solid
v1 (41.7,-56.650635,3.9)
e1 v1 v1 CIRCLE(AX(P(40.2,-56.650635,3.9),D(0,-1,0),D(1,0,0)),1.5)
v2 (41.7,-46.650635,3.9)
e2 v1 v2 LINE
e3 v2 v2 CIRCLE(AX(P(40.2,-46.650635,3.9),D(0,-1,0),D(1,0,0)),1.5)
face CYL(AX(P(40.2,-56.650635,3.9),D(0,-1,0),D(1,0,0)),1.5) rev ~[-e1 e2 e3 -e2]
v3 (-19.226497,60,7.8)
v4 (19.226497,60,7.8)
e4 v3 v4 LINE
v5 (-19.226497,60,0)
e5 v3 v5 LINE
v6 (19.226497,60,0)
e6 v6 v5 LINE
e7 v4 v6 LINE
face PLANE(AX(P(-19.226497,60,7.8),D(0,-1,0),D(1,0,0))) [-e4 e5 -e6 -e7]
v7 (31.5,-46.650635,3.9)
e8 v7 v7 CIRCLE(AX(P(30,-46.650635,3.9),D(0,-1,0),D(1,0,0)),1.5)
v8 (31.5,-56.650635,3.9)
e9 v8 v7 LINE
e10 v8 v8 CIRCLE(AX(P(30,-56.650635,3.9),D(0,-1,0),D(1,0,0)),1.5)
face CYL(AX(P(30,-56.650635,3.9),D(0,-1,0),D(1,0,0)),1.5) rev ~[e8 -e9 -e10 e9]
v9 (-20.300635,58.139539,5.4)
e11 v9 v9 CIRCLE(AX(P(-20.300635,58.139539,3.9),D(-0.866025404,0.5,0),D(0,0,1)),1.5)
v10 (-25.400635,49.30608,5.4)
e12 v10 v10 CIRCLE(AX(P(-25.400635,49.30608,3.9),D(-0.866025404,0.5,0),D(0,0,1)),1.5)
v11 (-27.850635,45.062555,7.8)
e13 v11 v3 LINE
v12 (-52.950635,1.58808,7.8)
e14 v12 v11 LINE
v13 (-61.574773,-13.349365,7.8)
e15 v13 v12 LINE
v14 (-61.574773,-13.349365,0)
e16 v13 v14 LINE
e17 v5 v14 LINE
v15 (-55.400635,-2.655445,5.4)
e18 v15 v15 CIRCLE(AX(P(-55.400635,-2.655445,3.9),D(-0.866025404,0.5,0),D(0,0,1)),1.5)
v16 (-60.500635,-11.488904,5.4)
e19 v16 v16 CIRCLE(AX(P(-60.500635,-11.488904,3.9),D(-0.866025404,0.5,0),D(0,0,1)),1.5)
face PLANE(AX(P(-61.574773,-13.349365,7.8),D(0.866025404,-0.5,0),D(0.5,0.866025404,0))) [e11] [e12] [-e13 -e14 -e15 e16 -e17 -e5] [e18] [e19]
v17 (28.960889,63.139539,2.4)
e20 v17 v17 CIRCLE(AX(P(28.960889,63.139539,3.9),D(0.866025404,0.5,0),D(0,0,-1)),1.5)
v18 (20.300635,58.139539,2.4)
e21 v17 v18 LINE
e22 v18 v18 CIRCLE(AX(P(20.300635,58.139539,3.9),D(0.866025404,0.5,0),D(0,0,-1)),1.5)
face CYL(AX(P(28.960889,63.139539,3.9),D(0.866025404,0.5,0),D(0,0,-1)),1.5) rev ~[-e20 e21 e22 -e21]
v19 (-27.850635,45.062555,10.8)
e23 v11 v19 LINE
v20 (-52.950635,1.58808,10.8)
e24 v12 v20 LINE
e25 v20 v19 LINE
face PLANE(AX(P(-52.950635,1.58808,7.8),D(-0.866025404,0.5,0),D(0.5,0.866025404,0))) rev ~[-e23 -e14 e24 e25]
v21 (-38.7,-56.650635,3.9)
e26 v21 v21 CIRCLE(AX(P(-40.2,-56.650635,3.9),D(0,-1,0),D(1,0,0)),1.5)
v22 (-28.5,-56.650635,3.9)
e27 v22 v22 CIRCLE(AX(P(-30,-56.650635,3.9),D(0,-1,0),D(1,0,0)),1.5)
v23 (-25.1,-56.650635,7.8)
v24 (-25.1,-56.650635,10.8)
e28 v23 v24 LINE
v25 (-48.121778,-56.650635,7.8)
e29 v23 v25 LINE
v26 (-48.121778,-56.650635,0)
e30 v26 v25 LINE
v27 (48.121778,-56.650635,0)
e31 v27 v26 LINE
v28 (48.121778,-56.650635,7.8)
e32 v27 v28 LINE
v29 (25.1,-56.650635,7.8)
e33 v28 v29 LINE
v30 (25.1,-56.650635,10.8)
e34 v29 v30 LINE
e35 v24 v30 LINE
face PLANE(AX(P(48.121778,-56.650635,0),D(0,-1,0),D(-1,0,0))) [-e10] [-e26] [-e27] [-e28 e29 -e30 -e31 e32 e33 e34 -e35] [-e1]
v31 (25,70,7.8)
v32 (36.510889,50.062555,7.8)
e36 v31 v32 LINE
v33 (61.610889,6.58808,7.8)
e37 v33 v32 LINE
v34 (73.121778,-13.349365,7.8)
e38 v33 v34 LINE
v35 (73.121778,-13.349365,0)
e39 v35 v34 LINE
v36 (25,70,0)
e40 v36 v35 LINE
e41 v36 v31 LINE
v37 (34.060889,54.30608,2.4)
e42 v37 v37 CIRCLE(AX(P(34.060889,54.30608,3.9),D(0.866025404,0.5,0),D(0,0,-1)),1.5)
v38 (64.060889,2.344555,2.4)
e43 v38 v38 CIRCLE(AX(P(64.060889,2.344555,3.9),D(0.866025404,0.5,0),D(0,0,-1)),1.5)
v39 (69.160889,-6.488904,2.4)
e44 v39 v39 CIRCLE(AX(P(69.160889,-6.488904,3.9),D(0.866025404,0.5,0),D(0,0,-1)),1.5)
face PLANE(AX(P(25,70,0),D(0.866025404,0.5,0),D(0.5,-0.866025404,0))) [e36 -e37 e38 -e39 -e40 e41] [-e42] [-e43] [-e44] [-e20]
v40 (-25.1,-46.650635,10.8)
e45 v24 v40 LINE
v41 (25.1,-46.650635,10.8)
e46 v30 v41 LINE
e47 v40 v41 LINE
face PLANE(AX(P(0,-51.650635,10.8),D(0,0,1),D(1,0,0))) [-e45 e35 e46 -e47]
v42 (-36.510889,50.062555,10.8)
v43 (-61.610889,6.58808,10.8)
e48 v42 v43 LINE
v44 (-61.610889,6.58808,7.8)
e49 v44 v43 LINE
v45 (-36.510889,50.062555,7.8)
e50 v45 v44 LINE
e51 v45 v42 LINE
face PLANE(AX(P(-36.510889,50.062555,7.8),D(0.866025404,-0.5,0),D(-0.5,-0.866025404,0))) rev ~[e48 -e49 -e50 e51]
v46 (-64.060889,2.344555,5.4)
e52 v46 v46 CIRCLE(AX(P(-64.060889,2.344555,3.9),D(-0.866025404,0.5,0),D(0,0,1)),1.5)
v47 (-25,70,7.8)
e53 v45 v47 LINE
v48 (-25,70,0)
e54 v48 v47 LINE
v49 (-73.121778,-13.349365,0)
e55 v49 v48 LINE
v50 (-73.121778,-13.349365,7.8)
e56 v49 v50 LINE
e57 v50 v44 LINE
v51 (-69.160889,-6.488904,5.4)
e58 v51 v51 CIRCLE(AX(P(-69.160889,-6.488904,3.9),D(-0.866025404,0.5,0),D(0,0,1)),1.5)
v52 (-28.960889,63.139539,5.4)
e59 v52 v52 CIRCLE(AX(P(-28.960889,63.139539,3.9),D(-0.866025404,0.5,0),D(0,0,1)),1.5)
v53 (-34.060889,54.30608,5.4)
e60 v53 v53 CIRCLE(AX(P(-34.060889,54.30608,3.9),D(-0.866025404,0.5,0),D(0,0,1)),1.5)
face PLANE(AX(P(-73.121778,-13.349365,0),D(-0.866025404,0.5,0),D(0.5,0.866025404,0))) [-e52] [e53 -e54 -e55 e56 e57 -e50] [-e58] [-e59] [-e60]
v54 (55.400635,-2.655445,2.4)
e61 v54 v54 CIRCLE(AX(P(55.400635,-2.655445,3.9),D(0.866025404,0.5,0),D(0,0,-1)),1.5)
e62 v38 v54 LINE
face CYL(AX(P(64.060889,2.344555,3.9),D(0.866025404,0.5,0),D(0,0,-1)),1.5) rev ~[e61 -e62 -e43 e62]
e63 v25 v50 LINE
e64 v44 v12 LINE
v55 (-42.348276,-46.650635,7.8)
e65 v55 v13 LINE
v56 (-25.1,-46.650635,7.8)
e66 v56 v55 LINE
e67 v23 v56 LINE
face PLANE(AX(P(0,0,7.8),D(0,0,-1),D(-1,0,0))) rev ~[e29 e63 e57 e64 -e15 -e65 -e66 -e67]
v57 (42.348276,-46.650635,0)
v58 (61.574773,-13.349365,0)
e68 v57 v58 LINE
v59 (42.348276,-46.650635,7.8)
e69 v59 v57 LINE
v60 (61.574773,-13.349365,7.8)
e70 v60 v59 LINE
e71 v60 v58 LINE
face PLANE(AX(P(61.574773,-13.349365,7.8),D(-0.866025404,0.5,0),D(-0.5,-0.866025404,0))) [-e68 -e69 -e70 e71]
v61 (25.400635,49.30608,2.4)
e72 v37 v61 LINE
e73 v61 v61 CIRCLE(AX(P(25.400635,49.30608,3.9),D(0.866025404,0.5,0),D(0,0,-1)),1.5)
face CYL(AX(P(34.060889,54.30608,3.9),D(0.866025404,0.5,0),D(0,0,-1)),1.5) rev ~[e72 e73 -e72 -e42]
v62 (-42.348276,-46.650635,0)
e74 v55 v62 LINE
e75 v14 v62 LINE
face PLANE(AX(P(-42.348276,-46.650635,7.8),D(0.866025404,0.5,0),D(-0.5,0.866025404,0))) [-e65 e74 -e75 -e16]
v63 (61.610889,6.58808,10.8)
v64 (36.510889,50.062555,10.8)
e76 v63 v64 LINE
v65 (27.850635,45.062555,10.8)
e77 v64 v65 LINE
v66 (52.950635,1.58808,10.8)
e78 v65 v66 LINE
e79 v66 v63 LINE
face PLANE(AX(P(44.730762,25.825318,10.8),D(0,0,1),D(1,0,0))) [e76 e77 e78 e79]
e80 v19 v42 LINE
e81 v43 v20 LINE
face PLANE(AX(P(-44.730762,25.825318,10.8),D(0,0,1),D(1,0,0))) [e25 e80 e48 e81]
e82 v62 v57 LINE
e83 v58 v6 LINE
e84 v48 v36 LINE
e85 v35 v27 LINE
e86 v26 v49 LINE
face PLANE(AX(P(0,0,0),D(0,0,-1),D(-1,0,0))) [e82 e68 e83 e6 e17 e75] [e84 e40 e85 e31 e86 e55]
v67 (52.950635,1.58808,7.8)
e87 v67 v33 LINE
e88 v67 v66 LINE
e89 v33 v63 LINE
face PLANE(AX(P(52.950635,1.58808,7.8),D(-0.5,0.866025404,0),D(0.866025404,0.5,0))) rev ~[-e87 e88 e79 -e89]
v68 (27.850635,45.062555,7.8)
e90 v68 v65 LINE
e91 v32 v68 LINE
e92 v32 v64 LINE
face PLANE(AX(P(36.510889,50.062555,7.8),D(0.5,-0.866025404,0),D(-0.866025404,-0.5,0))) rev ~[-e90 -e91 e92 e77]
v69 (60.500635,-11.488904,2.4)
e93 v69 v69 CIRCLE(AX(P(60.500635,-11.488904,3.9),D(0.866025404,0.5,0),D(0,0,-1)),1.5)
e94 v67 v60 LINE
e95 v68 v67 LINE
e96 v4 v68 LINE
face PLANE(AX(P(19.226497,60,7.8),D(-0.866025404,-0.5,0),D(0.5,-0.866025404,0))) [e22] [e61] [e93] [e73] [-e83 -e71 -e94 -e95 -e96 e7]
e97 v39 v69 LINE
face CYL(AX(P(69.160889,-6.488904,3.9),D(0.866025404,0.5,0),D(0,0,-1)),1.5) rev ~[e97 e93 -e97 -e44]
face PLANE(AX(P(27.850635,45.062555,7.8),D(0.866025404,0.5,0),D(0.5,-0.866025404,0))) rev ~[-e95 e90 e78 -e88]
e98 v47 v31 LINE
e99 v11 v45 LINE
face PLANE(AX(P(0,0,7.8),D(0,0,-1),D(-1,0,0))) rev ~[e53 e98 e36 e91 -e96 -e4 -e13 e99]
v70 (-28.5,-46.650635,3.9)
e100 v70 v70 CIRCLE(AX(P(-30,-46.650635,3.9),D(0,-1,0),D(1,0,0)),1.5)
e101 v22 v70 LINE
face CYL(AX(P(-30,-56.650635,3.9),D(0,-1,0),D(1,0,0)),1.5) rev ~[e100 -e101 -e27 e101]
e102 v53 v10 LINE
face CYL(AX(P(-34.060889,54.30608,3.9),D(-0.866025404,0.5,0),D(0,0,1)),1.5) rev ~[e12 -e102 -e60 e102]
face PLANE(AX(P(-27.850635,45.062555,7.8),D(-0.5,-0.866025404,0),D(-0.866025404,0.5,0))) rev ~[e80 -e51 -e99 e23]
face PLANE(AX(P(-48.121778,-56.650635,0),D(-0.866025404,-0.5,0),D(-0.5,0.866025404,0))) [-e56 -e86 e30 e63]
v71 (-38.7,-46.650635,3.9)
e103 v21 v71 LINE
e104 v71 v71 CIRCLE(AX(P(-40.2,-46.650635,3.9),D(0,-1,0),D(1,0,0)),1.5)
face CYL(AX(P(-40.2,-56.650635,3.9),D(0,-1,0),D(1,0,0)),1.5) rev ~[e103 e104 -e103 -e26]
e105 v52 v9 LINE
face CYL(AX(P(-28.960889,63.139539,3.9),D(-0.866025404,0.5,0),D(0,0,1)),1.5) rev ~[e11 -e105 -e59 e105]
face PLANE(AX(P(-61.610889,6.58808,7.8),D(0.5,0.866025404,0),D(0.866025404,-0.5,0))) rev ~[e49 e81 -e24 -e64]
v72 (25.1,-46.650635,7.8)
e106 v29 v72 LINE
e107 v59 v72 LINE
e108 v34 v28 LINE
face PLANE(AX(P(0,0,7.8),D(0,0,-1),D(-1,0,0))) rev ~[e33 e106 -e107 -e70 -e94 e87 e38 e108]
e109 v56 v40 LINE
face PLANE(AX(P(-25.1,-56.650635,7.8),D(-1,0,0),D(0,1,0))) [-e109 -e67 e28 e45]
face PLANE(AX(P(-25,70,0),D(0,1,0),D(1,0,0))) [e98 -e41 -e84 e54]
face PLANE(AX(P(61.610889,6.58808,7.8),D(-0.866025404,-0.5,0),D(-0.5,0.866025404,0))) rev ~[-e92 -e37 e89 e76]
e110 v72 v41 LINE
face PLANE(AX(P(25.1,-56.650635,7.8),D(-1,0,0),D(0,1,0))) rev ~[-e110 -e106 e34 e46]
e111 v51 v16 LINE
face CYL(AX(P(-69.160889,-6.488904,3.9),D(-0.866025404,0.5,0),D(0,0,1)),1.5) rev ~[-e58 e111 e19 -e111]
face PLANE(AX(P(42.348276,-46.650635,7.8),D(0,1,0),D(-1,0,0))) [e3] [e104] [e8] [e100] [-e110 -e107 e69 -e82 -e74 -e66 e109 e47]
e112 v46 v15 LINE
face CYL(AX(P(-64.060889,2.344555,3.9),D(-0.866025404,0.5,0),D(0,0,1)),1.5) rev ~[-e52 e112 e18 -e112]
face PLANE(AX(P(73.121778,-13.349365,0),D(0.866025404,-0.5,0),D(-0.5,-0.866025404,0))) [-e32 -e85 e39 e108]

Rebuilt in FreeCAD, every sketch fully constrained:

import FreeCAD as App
import Part
import Sketcher
Q = App.Units.Quantity

doc = App.newDocument("Part")
body = doc.addObject("PartDesign::Body", "Body")

# Sketch on XY plane
sketch1 = body.newObject("Sketcher::SketchObject", "Sketch")
sketch1.AttachmentSupport = (doc.getObject("XY_Plane"), [""])
sketch1.MapMode = "FlatFace"
sketch1.addGeometry(Part.LineSegment(App.Vector(25, 70, 0), App.Vector(-25, 70, 0)), False)
sketch1.addGeometry(Part.LineSegment(App.Vector(-25, 70, 0), App.Vector(-73, -13, 0)), False)
sketch1.addGeometry(Part.LineSegment(App.Vector(-73, -13, 0), App.Vector(-48, -57, 0)), False)
sketch1.addGeometry(Part.LineSegment(App.Vector(-48, -57, 0), App.Vector(48, -57, 0)), False)
sketch1.addGeometry(Part.LineSegment(App.Vector(48, -57, 0), App.Vector(73, -13, 0)), False)
sketch1.addGeometry(Part.LineSegment(App.Vector(73, -13, 0), App.Vector(25, 70, 0)), False)
sketch1.addConstraint(Sketcher.Constraint("Coincident", 0, 2, 1, 1))
sketch1.addConstraint(Sketcher.Constraint("Coincident", 1, 2, 2, 1))
sketch1.addConstraint(Sketcher.Constraint("Coincident", 2, 2, 3, 1))
sketch1.addConstraint(Sketcher.Constraint("Coincident", 3, 2, 4, 1))
sketch1.addConstraint(Sketcher.Constraint("Coincident", 4, 2, 5, 1))
sketch1.addConstraint(Sketcher.Constraint("Coincident", 5, 2, 0, 1))
sketch1.addConstraint(Sketcher.Constraint("Horizontal", 0))
sketch1.addConstraint(Sketcher.Constraint("Horizontal", 3))
sketch1.addConstraint(Sketcher.Constraint("Symmetric", 1, 2, 4, 2, -2))
sketch1.addConstraint(Sketcher.Constraint("Parallel", 1, 4))
sketch1.addConstraint(Sketcher.Constraint("Parallel", 2, 5))
sketch1.addConstraint(Sketcher.Constraint("Equal", 2, 4))
sketch1.addConstraint(Sketcher.Constraint("DistanceX", 0, 2, 0, 1, 50.0))
sketch1.addConstraint(Sketcher.Constraint("Angle", 1, Q("-120 deg")))
sketch1.addConstraint(Sketcher.Constraint("Distance", 2, 50.0))
sketch1.addConstraint(Sketcher.Constraint("DistanceY", -1, 1, 0, 2, 70.0))
sketch1.addConstraint(Sketcher.Constraint("DistanceX", 3, 1, 3, 2, 96.243557))
pad1 = body.newObject("PartDesign::Pad", "Pad")
pad1.Profile = sketch1
pad1.Length = 7.8

# Sketch on an angled plane
sketch2 = body.newObject("Sketcher::SketchObject", "Sketch001")
sketch2.Placement = App.Placement(App.Vector(-49.060889, 28.325318, 0), App.Rotation(App.Vector(0, 0, 1), App.Vector(0.5, 0.866025404, 0), App.Vector(-0.866025404, 0.5, 0), "ZXY"))
sketch2.addGeometry(Part.Circle(App.Vector(3.9, 40.2, 0), App.Vector(0, 0, 1), 1.5), False)
sketch2.addGeometry(Part.Circle(App.Vector(3.9, 30, 0), App.Vector(0, 0, 1), 1.5), False)
sketch2.addGeometry(Part.Circle(App.Vector(3.9, -30, 0), App.Vector(0, 0, 1), 1.5), False)
sketch2.addGeometry(Part.Circle(App.Vector(3.9, -40.2, 0), App.Vector(0, 0, 1), 1.5), False)
sketch2.addConstraint(Sketcher.Constraint("Equal", 0, 1))
sketch2.addConstraint(Sketcher.Constraint("Equal", 1, 2))
sketch2.addConstraint(Sketcher.Constraint("Equal", 2, 3))
sketch2.addConstraint(Sketcher.Constraint("Symmetric", 1, 3, 2, 3, -1))
sketch2.addConstraint(Sketcher.Constraint("Symmetric", 0, 3, 3, 3, -1))
sketch2.addConstraint(Sketcher.Constraint("Vertical", 0, 3, 1, 3))
sketch2.addConstraint(Sketcher.Constraint("Diameter", 0, 3.0))
sketch2.addConstraint(Sketcher.Constraint("DistanceY", -1, 1, 1, 3, 30.0))
sketch2.addConstraint(Sketcher.Constraint("DistanceX", -1, 1, 0, 3, 3.9))
sketch2.addConstraint(Sketcher.Constraint("DistanceY", -1, 1, 0, 3, 40.2))
pocket1 = body.newObject("PartDesign::Pocket", "Pocket")
pocket1.Profile = sketch2
pocket1.Length = 12

# Sketch on XZ plane
sketch3 = body.newObject("Sketcher::SketchObject", "Sketch002")
sketch3.AttachmentSupport = (doc.getObject("XZ_Plane"), [""])
sketch3.MapMode = "FlatFace"
sketch3.AttachmentOffset = App.Placement(App.Vector(0, 0, 56.650635), App.Rotation())
sketch3.addGeometry(Part.Circle(App.Vector(-30, 3.9, 0), App.Vector(0, 0, 1), 1.5), False)
sketch3.addGeometry(Part.Circle(App.Vector(-40.2, 3.9, 0), App.Vector(0, 0, 1), 1.5), False)
sketch3.addGeometry(Part.Circle(App.Vector(40.2, 3.9, 0), App.Vector(0, 0, 1), 1.5), False)
sketch3.addGeometry(Part.Circle(App.Vector(30, 3.9, 0), App.Vector(0, 0, 1), 1.5), False)
sketch3.addConstraint(Sketcher.Constraint("Equal", 0, 1))
sketch3.addConstraint(Sketcher.Constraint("Equal", 1, 2))
sketch3.addConstraint(Sketcher.Constraint("Equal", 2, 3))
sketch3.addConstraint(Sketcher.Constraint("Symmetric", 1, 3, 2, 3, -2))
sketch3.addConstraint(Sketcher.Constraint("Symmetric", 0, 3, 3, 3, -2))
sketch3.addConstraint(Sketcher.Constraint("Horizontal", 0, 3, 1, 3))
sketch3.addConstraint(Sketcher.Constraint("Diameter", 0, 3.0))
sketch3.addConstraint(Sketcher.Constraint("DistanceX", 0, 3, -1, 1, 30.0))
sketch3.addConstraint(Sketcher.Constraint("DistanceY", -1, 1, 0, 3, 3.9))
sketch3.addConstraint(Sketcher.Constraint("DistanceX", 1, 3, -1, 1, 40.2))
pocket2 = body.newObject("PartDesign::Pocket", "Pocket001")
pocket2.Profile = sketch3
pocket2.Length = 12

# Sketch on an angled plane
sketch4 = body.newObject("Sketcher::SketchObject", "Sketch003")
sketch4.Placement = App.Placement(App.Vector(49.060889, 28.325318, 0), App.Rotation(App.Vector(0, 0, -1), App.Vector(-0.5, 0.866025404, 0), App.Vector(0.866025404, 0.5, 0), "ZXY"))
sketch4.addGeometry(Part.Circle(App.Vector(-3.9, 40.2, 0), App.Vector(0, 0, 1), 1.5), False)
sketch4.addGeometry(Part.Circle(App.Vector(-3.9, 30, 0), App.Vector(0, 0, 1), 1.5), False)
sketch4.addGeometry(Part.Circle(App.Vector(-3.9, -30, 0), App.Vector(0, 0, 1), 1.5), False)
sketch4.addGeometry(Part.Circle(App.Vector(-3.9, -40.2, 0), App.Vector(0, 0, 1), 1.5), False)
sketch4.addConstraint(Sketcher.Constraint("Equal", 0, 1))
sketch4.addConstraint(Sketcher.Constraint("Equal", 1, 2))
sketch4.addConstraint(Sketcher.Constraint("Equal", 2, 3))
sketch4.addConstraint(Sketcher.Constraint("Symmetric", 1, 3, 2, 3, -1))
sketch4.addConstraint(Sketcher.Constraint("Symmetric", 0, 3, 3, 3, -1))
sketch4.addConstraint(Sketcher.Constraint("Vertical", 0, 3, 1, 3))
sketch4.addConstraint(Sketcher.Constraint("Diameter", 0, 3.0))
sketch4.addConstraint(Sketcher.Constraint("DistanceY", -1, 1, 1, 3, 30.0))
sketch4.addConstraint(Sketcher.Constraint("DistanceX", 0, 3, -1, 1, 3.9))
sketch4.addConstraint(Sketcher.Constraint("DistanceY", -1, 1, 0, 3, 40.2))
pocket3 = body.newObject("PartDesign::Pocket", "Pocket002")
pocket3.Profile = sketch4
pocket3.Length = 12

# Sketch on XY plane
sketch5 = body.newObject("Sketcher::SketchObject", "Sketch004")
sketch5.AttachmentSupport = (doc.getObject("XY_Plane"), [""])
sketch5.MapMode = "FlatFace"
sketch5.AttachmentOffset = App.Placement(App.Vector(0, 0, 7.8), App.Rotation())
sketch5.addGeometry(Part.LineSegment(App.Vector(-19, 60, 0), App.Vector(-62, -13, 0)), False)
sketch5.addGeometry(Part.LineSegment(App.Vector(-62, -13, 0), App.Vector(-42, -47, 0)), False)
sketch5.addGeometry(Part.LineSegment(App.Vector(-42, -47, 0), App.Vector(42, -47, 0)), False)
sketch5.addGeometry(Part.LineSegment(App.Vector(42, -47, 0), App.Vector(62, -13, 0)), False)
sketch5.addGeometry(Part.LineSegment(App.Vector(62, -13, 0), App.Vector(19, 60, 0)), False)
sketch5.addGeometry(Part.LineSegment(App.Vector(19, 60, 0), App.Vector(-19, 60, 0)), False)
sketch5.addConstraint(Sketcher.Constraint("Coincident", 0, 2, 1, 1))
sketch5.addConstraint(Sketcher.Constraint("Coincident", 1, 2, 2, 1))
sketch5.addConstraint(Sketcher.Constraint("Coincident", 2, 2, 3, 1))
sketch5.addConstraint(Sketcher.Constraint("Coincident", 3, 2, 4, 1))
sketch5.addConstraint(Sketcher.Constraint("Coincident", 4, 2, 5, 1))
sketch5.addConstraint(Sketcher.Constraint("Coincident", 5, 2, 0, 1))
sketch5.addConstraint(Sketcher.Constraint("Horizontal", 2))
sketch5.addConstraint(Sketcher.Constraint("Horizontal", 5))
sketch5.addConstraint(Sketcher.Constraint("Symmetric", 0, 2, 3, 2, -2))
sketch5.addConstraint(Sketcher.Constraint("Parallel", 0, 3))
sketch5.addConstraint(Sketcher.Constraint("Parallel", 1, 4))
sketch5.addConstraint(Sketcher.Constraint("Equal", 1, 3))
sketch5.addConstraint(Sketcher.Constraint("Angle", 0, Q("-120 deg")))
sketch5.addConstraint(Sketcher.Constraint("DistanceY", -1, 1, 4, 2, 60.0))
sketch5.addConstraint(Sketcher.Constraint("DistanceX", 2, 1, 2, 2, 84.696551))
sketch5.addConstraint(Sketcher.Constraint("Distance", 0, 84.696551))
sketch5.addConstraint(Sketcher.Constraint("DistanceX", 5, 2, 5, 1, 38.452995))
pocket4 = body.newObject("PartDesign::Pocket", "Pocket003")
pocket4.Profile = sketch5
pocket4.Type = "ThroughAll"

# Sketch on XY plane
sketch6 = body.newObject("Sketcher::SketchObject", "Sketch005")
sketch6.AttachmentSupport = (doc.getObject("XY_Plane"), [""])
sketch6.MapMode = "FlatFace"
sketch6.AttachmentOffset = App.Placement(App.Vector(0, 0, 7.8), App.Rotation())
sketch6.addGeometry(Part.LineSegment(App.Vector(-28, 45, 0), App.Vector(-37, 50, 0)), False)
sketch6.addGeometry(Part.LineSegment(App.Vector(-37, 50, 0), App.Vector(-62, 7, 0)), False)
sketch6.addGeometry(Part.LineSegment(App.Vector(-62, 7, 0), App.Vector(-53, 2, 0)), False)
sketch6.addGeometry(Part.LineSegment(App.Vector(-53, 2, 0), App.Vector(-28, 45, 0)), False)
sketch6.addGeometry(Part.LineSegment(App.Vector(37, 50, 0), App.Vector(28, 45, 0)), False)
sketch6.addGeometry(Part.LineSegment(App.Vector(28, 45, 0), App.Vector(53, 2, 0)), False)
sketch6.addGeometry(Part.LineSegment(App.Vector(53, 2, 0), App.Vector(62, 7, 0)), False)
sketch6.addGeometry(Part.LineSegment(App.Vector(62, 7, 0), App.Vector(37, 50, 0)), False)
sketch6.addGeometry(Part.LineSegment(App.Vector(-25, -47, 0), App.Vector(-25, -57, 0)), False)
sketch6.addGeometry(Part.LineSegment(App.Vector(-25, -57, 0), App.Vector(25, -57, 0)), False)
sketch6.addGeometry(Part.LineSegment(App.Vector(25, -57, 0), App.Vector(25, -47, 0)), False)
sketch6.addGeometry(Part.LineSegment(App.Vector(25, -47, 0), App.Vector(-25, -47, 0)), False)
sketch6.addConstraint(Sketcher.Constraint("Coincident", 0, 2, 1, 1))
sketch6.addConstraint(Sketcher.Constraint("Coincident", 1, 2, 2, 1))
sketch6.addConstraint(Sketcher.Constraint("Coincident", 2, 2, 3, 1))
sketch6.addConstraint(Sketcher.Constraint("Coincident", 3, 2, 0, 1))
sketch6.addConstraint(Sketcher.Constraint("Coincident", 4, 2, 5, 1))
sketch6.addConstraint(Sketcher.Constraint("Coincident", 5, 2, 6, 1))
sketch6.addConstraint(Sketcher.Constraint("Coincident", 6, 2, 7, 1))
sketch6.addConstraint(Sketcher.Constraint("Coincident", 7, 2, 4, 1))
sketch6.addConstraint(Sketcher.Constraint("Coincident", 8, 2, 9, 1))
sketch6.addConstraint(Sketcher.Constraint("Coincident", 9, 2, 10, 1))
sketch6.addConstraint(Sketcher.Constraint("Coincident", 10, 2, 11, 1))
sketch6.addConstraint(Sketcher.Constraint("Coincident", 11, 2, 8, 1))
sketch6.addConstraint(Sketcher.Constraint("Vertical", 8))
sketch6.addConstraint(Sketcher.Constraint("Horizontal", 9))
sketch6.addConstraint(Sketcher.Constraint("Vertical", 10))
sketch6.addConstraint(Sketcher.Constraint("Horizontal", 11))
sketch6.addConstraint(Sketcher.Constraint("Symmetric", 3, 2, 4, 2, -2))
sketch6.addConstraint(Sketcher.Constraint("Symmetric", 2, 2, 5, 2, -2))
sketch6.addConstraint(Sketcher.Constraint("Symmetric", 1, 2, 6, 2, -2))
sketch6.addConstraint(Sketcher.Constraint("Symmetric", 0, 2, 7, 2, -2))
sketch6.addConstraint(Sketcher.Constraint("Perpendicular", 0, 1))
sketch6.addConstraint(Sketcher.Constraint("Perpendicular", 1, 2))
sketch6.addConstraint(Sketcher.Constraint("Perpendicular", 2, 3))
sketch6.addConstraint(Sketcher.Constraint("DistanceY", 8, 2, 8, 1, 10.0))
sketch6.addConstraint(Sketcher.Constraint("Angle", 0, Q("150 deg")))
sketch6.addConstraint(Sketcher.Constraint("Distance", 0, 10.0))
sketch6.addConstraint(Sketcher.Constraint("DistanceX", 9, 1, 9, 2, 50.2))
sketch6.addConstraint(Sketcher.Constraint("Distance", 1, 50.2))
sketch6.addConstraint(Sketcher.Constraint("DistanceX", 8, 2, -1, 1, 25.1))
sketch6.addConstraint(Sketcher.Constraint("DistanceX", 0, 2, -1, 1, 36.510889))
sketch6.addConstraint(Sketcher.Constraint("DistanceY", -1, 1, 1, 2, 6.58808))
sketch6.addConstraint(Sketcher.Constraint("DistanceY", 8, 2, 3, 2, 101.71319))
pad2 = body.newObject("PartDesign::Pad", "Pad001")
pad2.Profile = sketch6
pad2.Length = 3

doc.recompute()
